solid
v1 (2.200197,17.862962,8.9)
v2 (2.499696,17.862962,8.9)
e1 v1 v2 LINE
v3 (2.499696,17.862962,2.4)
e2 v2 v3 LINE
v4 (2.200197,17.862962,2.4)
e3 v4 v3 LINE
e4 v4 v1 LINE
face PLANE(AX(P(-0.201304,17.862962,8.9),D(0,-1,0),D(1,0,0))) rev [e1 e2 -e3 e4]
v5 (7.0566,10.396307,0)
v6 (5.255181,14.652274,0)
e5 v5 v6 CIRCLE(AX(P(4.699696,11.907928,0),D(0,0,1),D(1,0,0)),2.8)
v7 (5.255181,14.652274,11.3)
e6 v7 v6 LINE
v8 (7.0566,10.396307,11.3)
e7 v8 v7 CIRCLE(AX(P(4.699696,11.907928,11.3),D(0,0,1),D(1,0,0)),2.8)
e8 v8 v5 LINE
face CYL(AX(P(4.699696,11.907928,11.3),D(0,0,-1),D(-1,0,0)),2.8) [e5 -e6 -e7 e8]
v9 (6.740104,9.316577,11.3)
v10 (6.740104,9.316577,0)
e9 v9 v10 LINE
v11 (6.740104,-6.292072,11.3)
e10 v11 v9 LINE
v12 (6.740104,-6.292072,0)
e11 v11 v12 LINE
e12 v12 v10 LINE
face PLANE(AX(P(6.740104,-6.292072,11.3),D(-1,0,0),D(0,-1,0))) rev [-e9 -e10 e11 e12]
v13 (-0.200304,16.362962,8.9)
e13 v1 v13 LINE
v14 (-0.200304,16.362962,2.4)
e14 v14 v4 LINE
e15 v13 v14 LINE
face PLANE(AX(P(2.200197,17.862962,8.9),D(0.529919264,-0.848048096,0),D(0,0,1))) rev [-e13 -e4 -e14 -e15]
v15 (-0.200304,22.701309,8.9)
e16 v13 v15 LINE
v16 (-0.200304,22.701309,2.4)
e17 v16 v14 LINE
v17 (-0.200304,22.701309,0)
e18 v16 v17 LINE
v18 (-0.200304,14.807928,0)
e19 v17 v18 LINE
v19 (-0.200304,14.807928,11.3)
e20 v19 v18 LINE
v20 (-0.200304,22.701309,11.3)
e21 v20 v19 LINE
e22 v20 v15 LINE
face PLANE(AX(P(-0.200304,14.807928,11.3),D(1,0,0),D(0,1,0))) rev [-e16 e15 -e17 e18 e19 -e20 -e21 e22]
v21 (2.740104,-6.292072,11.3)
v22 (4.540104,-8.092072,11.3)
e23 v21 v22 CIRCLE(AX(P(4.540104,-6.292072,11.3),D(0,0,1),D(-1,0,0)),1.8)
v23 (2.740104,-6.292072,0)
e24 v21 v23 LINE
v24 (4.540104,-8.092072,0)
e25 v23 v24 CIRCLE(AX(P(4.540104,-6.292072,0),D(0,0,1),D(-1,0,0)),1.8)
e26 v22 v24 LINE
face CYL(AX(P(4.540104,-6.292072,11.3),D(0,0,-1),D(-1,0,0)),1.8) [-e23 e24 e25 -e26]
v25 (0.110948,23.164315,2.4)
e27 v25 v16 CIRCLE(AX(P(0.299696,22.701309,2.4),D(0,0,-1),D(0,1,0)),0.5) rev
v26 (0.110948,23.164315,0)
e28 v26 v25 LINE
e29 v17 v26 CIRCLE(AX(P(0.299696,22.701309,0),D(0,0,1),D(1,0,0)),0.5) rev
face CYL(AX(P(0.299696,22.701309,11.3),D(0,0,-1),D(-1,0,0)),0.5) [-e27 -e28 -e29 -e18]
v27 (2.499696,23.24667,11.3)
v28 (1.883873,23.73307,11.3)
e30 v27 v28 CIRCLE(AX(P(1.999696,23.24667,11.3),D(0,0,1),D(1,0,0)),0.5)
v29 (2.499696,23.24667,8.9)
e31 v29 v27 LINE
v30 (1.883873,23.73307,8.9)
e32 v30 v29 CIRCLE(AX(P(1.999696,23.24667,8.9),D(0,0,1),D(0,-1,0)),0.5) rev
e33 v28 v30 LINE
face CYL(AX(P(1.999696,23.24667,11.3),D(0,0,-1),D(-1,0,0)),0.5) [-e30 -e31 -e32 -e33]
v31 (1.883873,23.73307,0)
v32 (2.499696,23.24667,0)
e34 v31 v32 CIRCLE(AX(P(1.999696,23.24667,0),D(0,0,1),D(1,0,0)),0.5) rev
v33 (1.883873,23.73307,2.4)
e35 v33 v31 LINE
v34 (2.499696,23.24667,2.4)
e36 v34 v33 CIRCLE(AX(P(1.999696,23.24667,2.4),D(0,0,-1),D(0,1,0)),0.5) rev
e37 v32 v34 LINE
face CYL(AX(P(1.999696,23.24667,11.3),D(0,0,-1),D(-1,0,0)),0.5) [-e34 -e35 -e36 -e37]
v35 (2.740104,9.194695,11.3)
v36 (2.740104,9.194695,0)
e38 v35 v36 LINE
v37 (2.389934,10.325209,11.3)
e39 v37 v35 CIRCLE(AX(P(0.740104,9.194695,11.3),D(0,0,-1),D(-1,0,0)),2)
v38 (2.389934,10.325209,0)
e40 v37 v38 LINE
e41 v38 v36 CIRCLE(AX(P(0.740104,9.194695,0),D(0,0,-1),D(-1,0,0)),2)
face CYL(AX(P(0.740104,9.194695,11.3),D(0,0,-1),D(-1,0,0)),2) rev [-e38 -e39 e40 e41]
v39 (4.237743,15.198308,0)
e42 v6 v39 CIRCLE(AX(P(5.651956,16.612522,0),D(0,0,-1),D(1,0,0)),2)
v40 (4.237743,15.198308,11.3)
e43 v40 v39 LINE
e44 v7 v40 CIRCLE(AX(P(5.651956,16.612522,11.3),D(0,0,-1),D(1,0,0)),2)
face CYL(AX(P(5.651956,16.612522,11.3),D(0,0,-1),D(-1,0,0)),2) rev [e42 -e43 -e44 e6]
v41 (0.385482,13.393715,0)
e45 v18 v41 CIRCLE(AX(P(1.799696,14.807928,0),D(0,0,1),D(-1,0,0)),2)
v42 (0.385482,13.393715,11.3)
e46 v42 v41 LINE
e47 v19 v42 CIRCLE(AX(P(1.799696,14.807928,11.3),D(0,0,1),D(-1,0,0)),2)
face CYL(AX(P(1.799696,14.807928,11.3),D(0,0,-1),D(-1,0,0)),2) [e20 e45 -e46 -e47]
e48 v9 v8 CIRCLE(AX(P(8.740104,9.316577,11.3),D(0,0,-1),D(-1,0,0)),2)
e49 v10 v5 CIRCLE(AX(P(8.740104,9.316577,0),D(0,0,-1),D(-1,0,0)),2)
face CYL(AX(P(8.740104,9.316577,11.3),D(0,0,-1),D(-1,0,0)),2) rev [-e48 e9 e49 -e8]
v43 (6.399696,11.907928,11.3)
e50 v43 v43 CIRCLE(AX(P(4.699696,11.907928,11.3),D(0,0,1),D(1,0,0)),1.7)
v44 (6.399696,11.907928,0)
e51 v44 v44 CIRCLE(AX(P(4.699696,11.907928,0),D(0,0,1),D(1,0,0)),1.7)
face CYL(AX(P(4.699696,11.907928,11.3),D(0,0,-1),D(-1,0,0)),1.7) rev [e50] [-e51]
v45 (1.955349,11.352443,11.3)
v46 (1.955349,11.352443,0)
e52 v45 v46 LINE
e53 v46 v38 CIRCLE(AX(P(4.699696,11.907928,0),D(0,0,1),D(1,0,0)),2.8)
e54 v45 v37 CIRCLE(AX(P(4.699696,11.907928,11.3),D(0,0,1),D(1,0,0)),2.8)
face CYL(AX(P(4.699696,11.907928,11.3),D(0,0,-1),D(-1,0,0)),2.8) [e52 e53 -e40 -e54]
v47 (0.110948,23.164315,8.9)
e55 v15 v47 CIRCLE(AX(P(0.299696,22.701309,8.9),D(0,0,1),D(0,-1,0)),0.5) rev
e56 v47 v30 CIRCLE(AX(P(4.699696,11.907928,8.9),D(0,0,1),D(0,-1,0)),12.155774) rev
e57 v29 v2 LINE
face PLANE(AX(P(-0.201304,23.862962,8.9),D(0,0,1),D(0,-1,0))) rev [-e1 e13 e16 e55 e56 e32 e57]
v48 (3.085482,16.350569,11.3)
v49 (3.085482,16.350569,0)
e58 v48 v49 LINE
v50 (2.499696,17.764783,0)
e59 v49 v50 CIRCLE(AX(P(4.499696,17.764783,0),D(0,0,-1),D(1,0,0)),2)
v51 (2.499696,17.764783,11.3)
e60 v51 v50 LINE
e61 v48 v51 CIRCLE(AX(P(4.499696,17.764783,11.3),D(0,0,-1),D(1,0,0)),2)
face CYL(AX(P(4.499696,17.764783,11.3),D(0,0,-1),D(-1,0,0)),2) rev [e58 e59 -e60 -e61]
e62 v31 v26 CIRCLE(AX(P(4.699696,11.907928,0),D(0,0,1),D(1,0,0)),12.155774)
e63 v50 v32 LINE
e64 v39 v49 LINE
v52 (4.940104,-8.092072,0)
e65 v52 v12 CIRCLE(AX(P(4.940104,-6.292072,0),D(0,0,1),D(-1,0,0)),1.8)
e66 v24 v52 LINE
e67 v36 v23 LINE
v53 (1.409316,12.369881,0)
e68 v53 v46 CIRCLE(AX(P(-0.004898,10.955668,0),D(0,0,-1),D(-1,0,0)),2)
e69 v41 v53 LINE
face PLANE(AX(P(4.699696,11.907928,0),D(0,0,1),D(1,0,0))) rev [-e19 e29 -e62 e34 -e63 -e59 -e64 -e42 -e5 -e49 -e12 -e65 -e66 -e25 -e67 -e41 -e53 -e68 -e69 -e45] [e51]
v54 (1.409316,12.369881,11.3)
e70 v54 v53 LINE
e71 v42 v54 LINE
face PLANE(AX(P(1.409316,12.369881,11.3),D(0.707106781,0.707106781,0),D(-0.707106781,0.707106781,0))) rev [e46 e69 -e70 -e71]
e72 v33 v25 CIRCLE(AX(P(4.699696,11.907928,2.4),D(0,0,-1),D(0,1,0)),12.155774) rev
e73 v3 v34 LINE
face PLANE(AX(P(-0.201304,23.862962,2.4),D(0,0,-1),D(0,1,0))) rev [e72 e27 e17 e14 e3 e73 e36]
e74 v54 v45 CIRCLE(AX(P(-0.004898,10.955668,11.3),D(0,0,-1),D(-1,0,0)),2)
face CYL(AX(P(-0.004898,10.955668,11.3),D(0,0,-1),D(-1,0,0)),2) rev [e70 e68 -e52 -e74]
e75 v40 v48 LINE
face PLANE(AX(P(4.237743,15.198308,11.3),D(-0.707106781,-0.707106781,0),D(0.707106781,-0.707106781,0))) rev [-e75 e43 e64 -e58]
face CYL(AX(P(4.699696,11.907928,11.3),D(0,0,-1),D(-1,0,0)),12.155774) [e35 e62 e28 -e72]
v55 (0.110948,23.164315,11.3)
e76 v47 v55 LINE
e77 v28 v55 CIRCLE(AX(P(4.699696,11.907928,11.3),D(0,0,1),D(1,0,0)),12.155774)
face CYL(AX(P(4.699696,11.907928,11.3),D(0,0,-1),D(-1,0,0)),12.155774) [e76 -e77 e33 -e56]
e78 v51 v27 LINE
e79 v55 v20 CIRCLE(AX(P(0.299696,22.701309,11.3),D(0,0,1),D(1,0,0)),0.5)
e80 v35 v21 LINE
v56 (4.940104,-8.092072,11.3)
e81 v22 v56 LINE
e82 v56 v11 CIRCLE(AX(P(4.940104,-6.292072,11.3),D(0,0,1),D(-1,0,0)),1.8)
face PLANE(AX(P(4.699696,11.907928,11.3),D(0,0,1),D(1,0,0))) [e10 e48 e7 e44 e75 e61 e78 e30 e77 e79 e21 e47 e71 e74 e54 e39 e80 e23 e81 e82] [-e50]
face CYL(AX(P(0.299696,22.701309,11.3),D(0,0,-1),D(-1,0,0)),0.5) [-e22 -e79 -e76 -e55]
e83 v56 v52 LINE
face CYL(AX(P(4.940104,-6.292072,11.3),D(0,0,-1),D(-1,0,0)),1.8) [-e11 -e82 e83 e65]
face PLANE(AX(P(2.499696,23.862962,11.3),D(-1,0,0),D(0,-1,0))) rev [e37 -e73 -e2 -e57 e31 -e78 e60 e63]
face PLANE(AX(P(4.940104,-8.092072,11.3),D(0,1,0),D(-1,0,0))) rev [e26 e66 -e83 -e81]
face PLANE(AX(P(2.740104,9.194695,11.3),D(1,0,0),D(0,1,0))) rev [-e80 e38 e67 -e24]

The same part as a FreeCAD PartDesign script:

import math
import FreeCAD as App
import Part
import Sketcher
from FreeCAD import Vector
Q = App.Units.Quantity


def edges_at(feature, points):
    """Names of the edges that pass closest to the given points."""
    edges = feature.Shape.Edges
    near = lambda p: min(range(len(edges)), key=lambda i: edges[i].distToShape(Part.Vertex(*p))[0])
    return sorted({f"Edge{near(p) + 1}" for p in points})


def add_polygon(sketch, points):
    """Adds a closed chain of lines whose ends are joined by coincident constraints."""
    first, n = sketch.GeometryCount, len(points)
    for a, b in zip(points, points[1:] + points[:1]):
        sketch.addGeometry(Part.LineSegment(App.Vector(*a, 0), App.Vector(*b, 0)), False)
    for i in range(n):
        sketch.addConstraint(Sketcher.Constraint("Coincident", first + i, 2, first + (i + 1) % n, 1))

doc = App.newDocument("Part")
body = doc.addObject("PartDesign::Body", "Body")

# Sketch on XY plane
sketch1 = doc.addObject("Sketcher::SketchObject", "Sketch")
body.addObject(sketch1)
sketch1.AttachmentSupport = (doc.XY_Plane, [""])
sketch1.MapMode = "FlatFace"
sketch1.addGeometry([
    Part.LineSegment(Vector(2.74, 9.19, 0), Vector(2.74, -6.29, 0)),  # 0
    Part.ArcOfCircle(Part.Circle(Vector(4.54, -6.29, 0), Vector(0, 0, 1), 1.8), math.radians(180), math.radians(270)),  # 1
    Part.LineSegment(Vector(4.54, -8.09, 0), Vector(4.94, -8.09, 0)),  # 2
    Part.ArcOfCircle(Part.Circle(Vector(4.94, -6.29, 0), Vector(0, 0, 1), 1.8), math.radians(-90), math.radians(0)),  # 3
    Part.LineSegment(Vector(6.74, -6.29, 0), Vector(6.74, 9.32, 0)),  # 4
    Part.ArcOfCircle(Part.Circle(Vector(8.74, 9.32, 0), Vector(0, 0, 1), 2), math.radians(147), math.radians(180)),  # 5
    Part.ArcOfCircle(Part.Circle(Vector(4.7, 11.91, 0), Vector(0, 0, 1), 2.8), math.radians(-33), math.radians(79)),  # 6
    Part.ArcOfCircle(Part.Circle(Vector(5.65, 16.61, 0), Vector(0, 0, 1), 2), math.radians(-135), math.radians(-101)),  # 7
    Part.LineSegment(Vector(4.24, 15.2, 0), Vector(3.09, 16.35, 0)),  # 8
    Part.ArcOfCircle(Part.Circle(Vector(4.5, 17.76, 0), Vector(0, 0, 1), 2), math.radians(180), math.radians(225)),  # 9
    Part.LineSegment(Vector(2.5, 17.76, 0), Vector(2.5, 23.86, 0)),  # 10
    Part.ArcOfCircle(Part.Circle(Vector(4.7, 11.91, 0), Vector(0, 0, 1), 12.16), math.radians(100.43), math.radians(113.77)),  # 11
    Part.LineSegment(Vector(-0.2, 23.03, 0), Vector(-0.2, 14.81, 0)),  # 12
    Part.ArcOfCircle(Part.Circle(Vector(1.8, 14.81, 0), Vector(0, 0, 1), 2), math.radians(180), math.radians(225)),  # 13
    Part.LineSegment(Vector(0.39, 13.39, 0), Vector(1.41, 12.37, 0)),  # 14
    Part.ArcOfCircle(Part.Circle(Vector(0, 10.96, 0), Vector(0, 0, 1), 2), math.radians(11), math.radians(45)),  # 15
    Part.ArcOfCircle(Part.Circle(Vector(4.7, 11.91, 0), Vector(0, 0, 1), 2.8), math.radians(-169), math.radians(-146)),  # 16
    Part.ArcOfCircle(Part.Circle(Vector(0.74, 9.19, 0), Vector(0, 0, 1), 2), math.radians(0), math.radians(34)),  # 17
    Part.Circle(Vector(4.7, 11.91, 0), Vector(0, 0, 1), 1.7),  # 18
], False)
sketch1.addConstraint([
    Sketcher.Constraint("Tangent", 0, 2, 1, 1),
    Sketcher.Constraint("Tangent", 1, 2, 2, 1),
    Sketcher.Constraint("Tangent", 2, 2, 3, 1),
    Sketcher.Constraint("Tangent", 3, 2, 4, 1),
    Sketcher.Constraint("Tangent", 4, 2, 5, 2),
    Sketcher.Constraint("Tangent", 5, 1, 6, 1),
    Sketcher.Constraint("Tangent", 6, 2, 7, 2),
    Sketcher.Constraint("Tangent", 7, 1, 8, 1),
    Sketcher.Constraint("Tangent", 8, 2, 9, 2),
    Sketcher.Constraint("Tangent", 9, 1, 10, 1),
    Sketcher.Constraint("Coincident", 10, 2, 11, 1),
    Sketcher.Constraint("Coincident", 11, 2, 12, 1),
    Sketcher.Constraint("Tangent", 12, 2, 13, 1),
    Sketcher.Constraint("Tangent", 13, 2, 14, 1),
    Sketcher.Constraint("Tangent", 14, 2, 15, 2),
    Sketcher.Constraint("Tangent", 15, 1, 16, 1),
    Sketcher.Constraint("Tangent", 16, 2, 17, 2),
    Sketcher.Constraint("Tangent", 17, 1, 0, 1),
    Sketcher.Constraint("Vertical", 0),
    Sketcher.Constraint("Horizontal", 2),
    Sketcher.Constraint("Vertical", 4),
    Sketcher.Constraint("Vertical", 10),
    Sketcher.Constraint("Vertical", 12),
    Sketcher.Constraint("Coincident", 11, 3, 6, 3),
    Sketcher.Constraint("Coincident", 16, 3, 6, 3),
    Sketcher.Constraint("Coincident", 18, 3, 6, 3),
    Sketcher.Constraint("Equal", 1, 3),
    Sketcher.Constraint("Equal", 5, 7),
    Sketcher.Constraint("Equal", 7, 9),
    Sketcher.Constraint("Equal", 9, 13),
    Sketcher.Constraint("Equal", 13, 15),
    Sketcher.Constraint("Equal", 6, 16),
    Sketcher.Constraint("Equal", 15, 17),
    Sketcher.Constraint("Parallel", 8, 14),
    Sketcher.Constraint("Radius", 5, 2.0),
    Sketcher.Constraint("Diameter", 18, 3.4),
    Sketcher.Constraint("Radius", 1, 1.8),
    Sketcher.Constraint("Radius", 6, 2.8),
    Sketcher.Constraint("Angle", 8, Q("135 deg")),
    Sketcher.Constraint("DistanceX", 2, 1, 2, 2, 0.4),
    Sketcher.Constraint("DistanceY", 1, 3, 6, 3, 18.2),
    Sketcher.Constraint("DistanceX", 9, 3, 6, 3, 0.2),
    Sketcher.Constraint("DistanceX", 13, 3, 9, 3, 2.7),
    Sketcher.Constraint("DistanceY", 6, 3, 13, 3, 2.9),
    Sketcher.Constraint("Radius", 11, 12.155774),
    Sketcher.Constraint("DistanceX", 15, 3, 17, 3, 0.745002),
    Sketcher.Constraint("DistanceY", 10, 1, 10, 2, 6.09818),
    Sketcher.Constraint("DistanceX", -1, 1, 5, 1, 7.0566),
    Sketcher.Constraint("DistanceY", 1, 3, -1, 1, 6.292072),
])
pad1 = doc.addObject("PartDesign::Pad", "Pad")
body.addObject(pad1)
pad1.Profile = sketch1
pad1.Length = 11.3

# Sketch on YZ plane
sketch2 = doc.addObject("Sketcher::SketchObject", "Sketch001")
body.addObject(sketch2)
sketch2.AttachmentSupport = (doc.YZ_Plane, [""])
sketch2.MapMode = "FlatFace"
sketch2.AttachmentOffset = App.Placement(Vector(0, 0, 2.499696), App.Rotation())
add_polygon(sketch2, [(24, 9), (18, 9), (18, 2), (24, 2)])  # lines 0-3
sketch2.addConstraint([
    Sketcher.Constraint("Horizontal", 0),
    Sketcher.Constraint("Vertical", 1),
    Sketcher.Constraint("Horizontal", 2),
    Sketcher.Constraint("Vertical", 3),
    Sketcher.Constraint("DistanceX", 0, 2, 0, 1, 6.0),
    Sketcher.Constraint("DistanceY", 1, 2, 1, 1, 6.5),
    Sketcher.Constraint("DistanceY", -1, 1, 0, 2, 8.9),
    Sketcher.Constraint("DistanceX", -1, 1, 0, 2, 17.862962),
])
pocket1 = doc.addObject("PartDesign::Pocket", "Pocket")
body.addObject(pocket1)
pocket1.Profile = sketch2
pocket1.Type = "UpToFirst"
doc.recompute()

chamfer = doc.addObject("PartDesign::Chamfer", "Chamfer")
body.addObject(chamfer)
chamfer.Base = (pocket1, edges_at(pocket1, [(-0.2, 17.863, 5.65)]))
chamfer.ChamferType = "Two distances"
chamfer.Size = 1.5
chamfer.Size2 = 2.400502
doc.recompute()

fillet = doc.addObject("PartDesign::Fillet", "Fillet")
body.addObject(fillet)
fillet.Base = (chamfer, edges_at(chamfer, [
    (2.5, 23.863, 10.1),
    (-0.2, 23.032, 10.1),
    (2.5, 23.863, 1.2),
    (-0.2, 23.032, 1.2),
]))
fillet.Radius = 0.5

doc.recompute()
